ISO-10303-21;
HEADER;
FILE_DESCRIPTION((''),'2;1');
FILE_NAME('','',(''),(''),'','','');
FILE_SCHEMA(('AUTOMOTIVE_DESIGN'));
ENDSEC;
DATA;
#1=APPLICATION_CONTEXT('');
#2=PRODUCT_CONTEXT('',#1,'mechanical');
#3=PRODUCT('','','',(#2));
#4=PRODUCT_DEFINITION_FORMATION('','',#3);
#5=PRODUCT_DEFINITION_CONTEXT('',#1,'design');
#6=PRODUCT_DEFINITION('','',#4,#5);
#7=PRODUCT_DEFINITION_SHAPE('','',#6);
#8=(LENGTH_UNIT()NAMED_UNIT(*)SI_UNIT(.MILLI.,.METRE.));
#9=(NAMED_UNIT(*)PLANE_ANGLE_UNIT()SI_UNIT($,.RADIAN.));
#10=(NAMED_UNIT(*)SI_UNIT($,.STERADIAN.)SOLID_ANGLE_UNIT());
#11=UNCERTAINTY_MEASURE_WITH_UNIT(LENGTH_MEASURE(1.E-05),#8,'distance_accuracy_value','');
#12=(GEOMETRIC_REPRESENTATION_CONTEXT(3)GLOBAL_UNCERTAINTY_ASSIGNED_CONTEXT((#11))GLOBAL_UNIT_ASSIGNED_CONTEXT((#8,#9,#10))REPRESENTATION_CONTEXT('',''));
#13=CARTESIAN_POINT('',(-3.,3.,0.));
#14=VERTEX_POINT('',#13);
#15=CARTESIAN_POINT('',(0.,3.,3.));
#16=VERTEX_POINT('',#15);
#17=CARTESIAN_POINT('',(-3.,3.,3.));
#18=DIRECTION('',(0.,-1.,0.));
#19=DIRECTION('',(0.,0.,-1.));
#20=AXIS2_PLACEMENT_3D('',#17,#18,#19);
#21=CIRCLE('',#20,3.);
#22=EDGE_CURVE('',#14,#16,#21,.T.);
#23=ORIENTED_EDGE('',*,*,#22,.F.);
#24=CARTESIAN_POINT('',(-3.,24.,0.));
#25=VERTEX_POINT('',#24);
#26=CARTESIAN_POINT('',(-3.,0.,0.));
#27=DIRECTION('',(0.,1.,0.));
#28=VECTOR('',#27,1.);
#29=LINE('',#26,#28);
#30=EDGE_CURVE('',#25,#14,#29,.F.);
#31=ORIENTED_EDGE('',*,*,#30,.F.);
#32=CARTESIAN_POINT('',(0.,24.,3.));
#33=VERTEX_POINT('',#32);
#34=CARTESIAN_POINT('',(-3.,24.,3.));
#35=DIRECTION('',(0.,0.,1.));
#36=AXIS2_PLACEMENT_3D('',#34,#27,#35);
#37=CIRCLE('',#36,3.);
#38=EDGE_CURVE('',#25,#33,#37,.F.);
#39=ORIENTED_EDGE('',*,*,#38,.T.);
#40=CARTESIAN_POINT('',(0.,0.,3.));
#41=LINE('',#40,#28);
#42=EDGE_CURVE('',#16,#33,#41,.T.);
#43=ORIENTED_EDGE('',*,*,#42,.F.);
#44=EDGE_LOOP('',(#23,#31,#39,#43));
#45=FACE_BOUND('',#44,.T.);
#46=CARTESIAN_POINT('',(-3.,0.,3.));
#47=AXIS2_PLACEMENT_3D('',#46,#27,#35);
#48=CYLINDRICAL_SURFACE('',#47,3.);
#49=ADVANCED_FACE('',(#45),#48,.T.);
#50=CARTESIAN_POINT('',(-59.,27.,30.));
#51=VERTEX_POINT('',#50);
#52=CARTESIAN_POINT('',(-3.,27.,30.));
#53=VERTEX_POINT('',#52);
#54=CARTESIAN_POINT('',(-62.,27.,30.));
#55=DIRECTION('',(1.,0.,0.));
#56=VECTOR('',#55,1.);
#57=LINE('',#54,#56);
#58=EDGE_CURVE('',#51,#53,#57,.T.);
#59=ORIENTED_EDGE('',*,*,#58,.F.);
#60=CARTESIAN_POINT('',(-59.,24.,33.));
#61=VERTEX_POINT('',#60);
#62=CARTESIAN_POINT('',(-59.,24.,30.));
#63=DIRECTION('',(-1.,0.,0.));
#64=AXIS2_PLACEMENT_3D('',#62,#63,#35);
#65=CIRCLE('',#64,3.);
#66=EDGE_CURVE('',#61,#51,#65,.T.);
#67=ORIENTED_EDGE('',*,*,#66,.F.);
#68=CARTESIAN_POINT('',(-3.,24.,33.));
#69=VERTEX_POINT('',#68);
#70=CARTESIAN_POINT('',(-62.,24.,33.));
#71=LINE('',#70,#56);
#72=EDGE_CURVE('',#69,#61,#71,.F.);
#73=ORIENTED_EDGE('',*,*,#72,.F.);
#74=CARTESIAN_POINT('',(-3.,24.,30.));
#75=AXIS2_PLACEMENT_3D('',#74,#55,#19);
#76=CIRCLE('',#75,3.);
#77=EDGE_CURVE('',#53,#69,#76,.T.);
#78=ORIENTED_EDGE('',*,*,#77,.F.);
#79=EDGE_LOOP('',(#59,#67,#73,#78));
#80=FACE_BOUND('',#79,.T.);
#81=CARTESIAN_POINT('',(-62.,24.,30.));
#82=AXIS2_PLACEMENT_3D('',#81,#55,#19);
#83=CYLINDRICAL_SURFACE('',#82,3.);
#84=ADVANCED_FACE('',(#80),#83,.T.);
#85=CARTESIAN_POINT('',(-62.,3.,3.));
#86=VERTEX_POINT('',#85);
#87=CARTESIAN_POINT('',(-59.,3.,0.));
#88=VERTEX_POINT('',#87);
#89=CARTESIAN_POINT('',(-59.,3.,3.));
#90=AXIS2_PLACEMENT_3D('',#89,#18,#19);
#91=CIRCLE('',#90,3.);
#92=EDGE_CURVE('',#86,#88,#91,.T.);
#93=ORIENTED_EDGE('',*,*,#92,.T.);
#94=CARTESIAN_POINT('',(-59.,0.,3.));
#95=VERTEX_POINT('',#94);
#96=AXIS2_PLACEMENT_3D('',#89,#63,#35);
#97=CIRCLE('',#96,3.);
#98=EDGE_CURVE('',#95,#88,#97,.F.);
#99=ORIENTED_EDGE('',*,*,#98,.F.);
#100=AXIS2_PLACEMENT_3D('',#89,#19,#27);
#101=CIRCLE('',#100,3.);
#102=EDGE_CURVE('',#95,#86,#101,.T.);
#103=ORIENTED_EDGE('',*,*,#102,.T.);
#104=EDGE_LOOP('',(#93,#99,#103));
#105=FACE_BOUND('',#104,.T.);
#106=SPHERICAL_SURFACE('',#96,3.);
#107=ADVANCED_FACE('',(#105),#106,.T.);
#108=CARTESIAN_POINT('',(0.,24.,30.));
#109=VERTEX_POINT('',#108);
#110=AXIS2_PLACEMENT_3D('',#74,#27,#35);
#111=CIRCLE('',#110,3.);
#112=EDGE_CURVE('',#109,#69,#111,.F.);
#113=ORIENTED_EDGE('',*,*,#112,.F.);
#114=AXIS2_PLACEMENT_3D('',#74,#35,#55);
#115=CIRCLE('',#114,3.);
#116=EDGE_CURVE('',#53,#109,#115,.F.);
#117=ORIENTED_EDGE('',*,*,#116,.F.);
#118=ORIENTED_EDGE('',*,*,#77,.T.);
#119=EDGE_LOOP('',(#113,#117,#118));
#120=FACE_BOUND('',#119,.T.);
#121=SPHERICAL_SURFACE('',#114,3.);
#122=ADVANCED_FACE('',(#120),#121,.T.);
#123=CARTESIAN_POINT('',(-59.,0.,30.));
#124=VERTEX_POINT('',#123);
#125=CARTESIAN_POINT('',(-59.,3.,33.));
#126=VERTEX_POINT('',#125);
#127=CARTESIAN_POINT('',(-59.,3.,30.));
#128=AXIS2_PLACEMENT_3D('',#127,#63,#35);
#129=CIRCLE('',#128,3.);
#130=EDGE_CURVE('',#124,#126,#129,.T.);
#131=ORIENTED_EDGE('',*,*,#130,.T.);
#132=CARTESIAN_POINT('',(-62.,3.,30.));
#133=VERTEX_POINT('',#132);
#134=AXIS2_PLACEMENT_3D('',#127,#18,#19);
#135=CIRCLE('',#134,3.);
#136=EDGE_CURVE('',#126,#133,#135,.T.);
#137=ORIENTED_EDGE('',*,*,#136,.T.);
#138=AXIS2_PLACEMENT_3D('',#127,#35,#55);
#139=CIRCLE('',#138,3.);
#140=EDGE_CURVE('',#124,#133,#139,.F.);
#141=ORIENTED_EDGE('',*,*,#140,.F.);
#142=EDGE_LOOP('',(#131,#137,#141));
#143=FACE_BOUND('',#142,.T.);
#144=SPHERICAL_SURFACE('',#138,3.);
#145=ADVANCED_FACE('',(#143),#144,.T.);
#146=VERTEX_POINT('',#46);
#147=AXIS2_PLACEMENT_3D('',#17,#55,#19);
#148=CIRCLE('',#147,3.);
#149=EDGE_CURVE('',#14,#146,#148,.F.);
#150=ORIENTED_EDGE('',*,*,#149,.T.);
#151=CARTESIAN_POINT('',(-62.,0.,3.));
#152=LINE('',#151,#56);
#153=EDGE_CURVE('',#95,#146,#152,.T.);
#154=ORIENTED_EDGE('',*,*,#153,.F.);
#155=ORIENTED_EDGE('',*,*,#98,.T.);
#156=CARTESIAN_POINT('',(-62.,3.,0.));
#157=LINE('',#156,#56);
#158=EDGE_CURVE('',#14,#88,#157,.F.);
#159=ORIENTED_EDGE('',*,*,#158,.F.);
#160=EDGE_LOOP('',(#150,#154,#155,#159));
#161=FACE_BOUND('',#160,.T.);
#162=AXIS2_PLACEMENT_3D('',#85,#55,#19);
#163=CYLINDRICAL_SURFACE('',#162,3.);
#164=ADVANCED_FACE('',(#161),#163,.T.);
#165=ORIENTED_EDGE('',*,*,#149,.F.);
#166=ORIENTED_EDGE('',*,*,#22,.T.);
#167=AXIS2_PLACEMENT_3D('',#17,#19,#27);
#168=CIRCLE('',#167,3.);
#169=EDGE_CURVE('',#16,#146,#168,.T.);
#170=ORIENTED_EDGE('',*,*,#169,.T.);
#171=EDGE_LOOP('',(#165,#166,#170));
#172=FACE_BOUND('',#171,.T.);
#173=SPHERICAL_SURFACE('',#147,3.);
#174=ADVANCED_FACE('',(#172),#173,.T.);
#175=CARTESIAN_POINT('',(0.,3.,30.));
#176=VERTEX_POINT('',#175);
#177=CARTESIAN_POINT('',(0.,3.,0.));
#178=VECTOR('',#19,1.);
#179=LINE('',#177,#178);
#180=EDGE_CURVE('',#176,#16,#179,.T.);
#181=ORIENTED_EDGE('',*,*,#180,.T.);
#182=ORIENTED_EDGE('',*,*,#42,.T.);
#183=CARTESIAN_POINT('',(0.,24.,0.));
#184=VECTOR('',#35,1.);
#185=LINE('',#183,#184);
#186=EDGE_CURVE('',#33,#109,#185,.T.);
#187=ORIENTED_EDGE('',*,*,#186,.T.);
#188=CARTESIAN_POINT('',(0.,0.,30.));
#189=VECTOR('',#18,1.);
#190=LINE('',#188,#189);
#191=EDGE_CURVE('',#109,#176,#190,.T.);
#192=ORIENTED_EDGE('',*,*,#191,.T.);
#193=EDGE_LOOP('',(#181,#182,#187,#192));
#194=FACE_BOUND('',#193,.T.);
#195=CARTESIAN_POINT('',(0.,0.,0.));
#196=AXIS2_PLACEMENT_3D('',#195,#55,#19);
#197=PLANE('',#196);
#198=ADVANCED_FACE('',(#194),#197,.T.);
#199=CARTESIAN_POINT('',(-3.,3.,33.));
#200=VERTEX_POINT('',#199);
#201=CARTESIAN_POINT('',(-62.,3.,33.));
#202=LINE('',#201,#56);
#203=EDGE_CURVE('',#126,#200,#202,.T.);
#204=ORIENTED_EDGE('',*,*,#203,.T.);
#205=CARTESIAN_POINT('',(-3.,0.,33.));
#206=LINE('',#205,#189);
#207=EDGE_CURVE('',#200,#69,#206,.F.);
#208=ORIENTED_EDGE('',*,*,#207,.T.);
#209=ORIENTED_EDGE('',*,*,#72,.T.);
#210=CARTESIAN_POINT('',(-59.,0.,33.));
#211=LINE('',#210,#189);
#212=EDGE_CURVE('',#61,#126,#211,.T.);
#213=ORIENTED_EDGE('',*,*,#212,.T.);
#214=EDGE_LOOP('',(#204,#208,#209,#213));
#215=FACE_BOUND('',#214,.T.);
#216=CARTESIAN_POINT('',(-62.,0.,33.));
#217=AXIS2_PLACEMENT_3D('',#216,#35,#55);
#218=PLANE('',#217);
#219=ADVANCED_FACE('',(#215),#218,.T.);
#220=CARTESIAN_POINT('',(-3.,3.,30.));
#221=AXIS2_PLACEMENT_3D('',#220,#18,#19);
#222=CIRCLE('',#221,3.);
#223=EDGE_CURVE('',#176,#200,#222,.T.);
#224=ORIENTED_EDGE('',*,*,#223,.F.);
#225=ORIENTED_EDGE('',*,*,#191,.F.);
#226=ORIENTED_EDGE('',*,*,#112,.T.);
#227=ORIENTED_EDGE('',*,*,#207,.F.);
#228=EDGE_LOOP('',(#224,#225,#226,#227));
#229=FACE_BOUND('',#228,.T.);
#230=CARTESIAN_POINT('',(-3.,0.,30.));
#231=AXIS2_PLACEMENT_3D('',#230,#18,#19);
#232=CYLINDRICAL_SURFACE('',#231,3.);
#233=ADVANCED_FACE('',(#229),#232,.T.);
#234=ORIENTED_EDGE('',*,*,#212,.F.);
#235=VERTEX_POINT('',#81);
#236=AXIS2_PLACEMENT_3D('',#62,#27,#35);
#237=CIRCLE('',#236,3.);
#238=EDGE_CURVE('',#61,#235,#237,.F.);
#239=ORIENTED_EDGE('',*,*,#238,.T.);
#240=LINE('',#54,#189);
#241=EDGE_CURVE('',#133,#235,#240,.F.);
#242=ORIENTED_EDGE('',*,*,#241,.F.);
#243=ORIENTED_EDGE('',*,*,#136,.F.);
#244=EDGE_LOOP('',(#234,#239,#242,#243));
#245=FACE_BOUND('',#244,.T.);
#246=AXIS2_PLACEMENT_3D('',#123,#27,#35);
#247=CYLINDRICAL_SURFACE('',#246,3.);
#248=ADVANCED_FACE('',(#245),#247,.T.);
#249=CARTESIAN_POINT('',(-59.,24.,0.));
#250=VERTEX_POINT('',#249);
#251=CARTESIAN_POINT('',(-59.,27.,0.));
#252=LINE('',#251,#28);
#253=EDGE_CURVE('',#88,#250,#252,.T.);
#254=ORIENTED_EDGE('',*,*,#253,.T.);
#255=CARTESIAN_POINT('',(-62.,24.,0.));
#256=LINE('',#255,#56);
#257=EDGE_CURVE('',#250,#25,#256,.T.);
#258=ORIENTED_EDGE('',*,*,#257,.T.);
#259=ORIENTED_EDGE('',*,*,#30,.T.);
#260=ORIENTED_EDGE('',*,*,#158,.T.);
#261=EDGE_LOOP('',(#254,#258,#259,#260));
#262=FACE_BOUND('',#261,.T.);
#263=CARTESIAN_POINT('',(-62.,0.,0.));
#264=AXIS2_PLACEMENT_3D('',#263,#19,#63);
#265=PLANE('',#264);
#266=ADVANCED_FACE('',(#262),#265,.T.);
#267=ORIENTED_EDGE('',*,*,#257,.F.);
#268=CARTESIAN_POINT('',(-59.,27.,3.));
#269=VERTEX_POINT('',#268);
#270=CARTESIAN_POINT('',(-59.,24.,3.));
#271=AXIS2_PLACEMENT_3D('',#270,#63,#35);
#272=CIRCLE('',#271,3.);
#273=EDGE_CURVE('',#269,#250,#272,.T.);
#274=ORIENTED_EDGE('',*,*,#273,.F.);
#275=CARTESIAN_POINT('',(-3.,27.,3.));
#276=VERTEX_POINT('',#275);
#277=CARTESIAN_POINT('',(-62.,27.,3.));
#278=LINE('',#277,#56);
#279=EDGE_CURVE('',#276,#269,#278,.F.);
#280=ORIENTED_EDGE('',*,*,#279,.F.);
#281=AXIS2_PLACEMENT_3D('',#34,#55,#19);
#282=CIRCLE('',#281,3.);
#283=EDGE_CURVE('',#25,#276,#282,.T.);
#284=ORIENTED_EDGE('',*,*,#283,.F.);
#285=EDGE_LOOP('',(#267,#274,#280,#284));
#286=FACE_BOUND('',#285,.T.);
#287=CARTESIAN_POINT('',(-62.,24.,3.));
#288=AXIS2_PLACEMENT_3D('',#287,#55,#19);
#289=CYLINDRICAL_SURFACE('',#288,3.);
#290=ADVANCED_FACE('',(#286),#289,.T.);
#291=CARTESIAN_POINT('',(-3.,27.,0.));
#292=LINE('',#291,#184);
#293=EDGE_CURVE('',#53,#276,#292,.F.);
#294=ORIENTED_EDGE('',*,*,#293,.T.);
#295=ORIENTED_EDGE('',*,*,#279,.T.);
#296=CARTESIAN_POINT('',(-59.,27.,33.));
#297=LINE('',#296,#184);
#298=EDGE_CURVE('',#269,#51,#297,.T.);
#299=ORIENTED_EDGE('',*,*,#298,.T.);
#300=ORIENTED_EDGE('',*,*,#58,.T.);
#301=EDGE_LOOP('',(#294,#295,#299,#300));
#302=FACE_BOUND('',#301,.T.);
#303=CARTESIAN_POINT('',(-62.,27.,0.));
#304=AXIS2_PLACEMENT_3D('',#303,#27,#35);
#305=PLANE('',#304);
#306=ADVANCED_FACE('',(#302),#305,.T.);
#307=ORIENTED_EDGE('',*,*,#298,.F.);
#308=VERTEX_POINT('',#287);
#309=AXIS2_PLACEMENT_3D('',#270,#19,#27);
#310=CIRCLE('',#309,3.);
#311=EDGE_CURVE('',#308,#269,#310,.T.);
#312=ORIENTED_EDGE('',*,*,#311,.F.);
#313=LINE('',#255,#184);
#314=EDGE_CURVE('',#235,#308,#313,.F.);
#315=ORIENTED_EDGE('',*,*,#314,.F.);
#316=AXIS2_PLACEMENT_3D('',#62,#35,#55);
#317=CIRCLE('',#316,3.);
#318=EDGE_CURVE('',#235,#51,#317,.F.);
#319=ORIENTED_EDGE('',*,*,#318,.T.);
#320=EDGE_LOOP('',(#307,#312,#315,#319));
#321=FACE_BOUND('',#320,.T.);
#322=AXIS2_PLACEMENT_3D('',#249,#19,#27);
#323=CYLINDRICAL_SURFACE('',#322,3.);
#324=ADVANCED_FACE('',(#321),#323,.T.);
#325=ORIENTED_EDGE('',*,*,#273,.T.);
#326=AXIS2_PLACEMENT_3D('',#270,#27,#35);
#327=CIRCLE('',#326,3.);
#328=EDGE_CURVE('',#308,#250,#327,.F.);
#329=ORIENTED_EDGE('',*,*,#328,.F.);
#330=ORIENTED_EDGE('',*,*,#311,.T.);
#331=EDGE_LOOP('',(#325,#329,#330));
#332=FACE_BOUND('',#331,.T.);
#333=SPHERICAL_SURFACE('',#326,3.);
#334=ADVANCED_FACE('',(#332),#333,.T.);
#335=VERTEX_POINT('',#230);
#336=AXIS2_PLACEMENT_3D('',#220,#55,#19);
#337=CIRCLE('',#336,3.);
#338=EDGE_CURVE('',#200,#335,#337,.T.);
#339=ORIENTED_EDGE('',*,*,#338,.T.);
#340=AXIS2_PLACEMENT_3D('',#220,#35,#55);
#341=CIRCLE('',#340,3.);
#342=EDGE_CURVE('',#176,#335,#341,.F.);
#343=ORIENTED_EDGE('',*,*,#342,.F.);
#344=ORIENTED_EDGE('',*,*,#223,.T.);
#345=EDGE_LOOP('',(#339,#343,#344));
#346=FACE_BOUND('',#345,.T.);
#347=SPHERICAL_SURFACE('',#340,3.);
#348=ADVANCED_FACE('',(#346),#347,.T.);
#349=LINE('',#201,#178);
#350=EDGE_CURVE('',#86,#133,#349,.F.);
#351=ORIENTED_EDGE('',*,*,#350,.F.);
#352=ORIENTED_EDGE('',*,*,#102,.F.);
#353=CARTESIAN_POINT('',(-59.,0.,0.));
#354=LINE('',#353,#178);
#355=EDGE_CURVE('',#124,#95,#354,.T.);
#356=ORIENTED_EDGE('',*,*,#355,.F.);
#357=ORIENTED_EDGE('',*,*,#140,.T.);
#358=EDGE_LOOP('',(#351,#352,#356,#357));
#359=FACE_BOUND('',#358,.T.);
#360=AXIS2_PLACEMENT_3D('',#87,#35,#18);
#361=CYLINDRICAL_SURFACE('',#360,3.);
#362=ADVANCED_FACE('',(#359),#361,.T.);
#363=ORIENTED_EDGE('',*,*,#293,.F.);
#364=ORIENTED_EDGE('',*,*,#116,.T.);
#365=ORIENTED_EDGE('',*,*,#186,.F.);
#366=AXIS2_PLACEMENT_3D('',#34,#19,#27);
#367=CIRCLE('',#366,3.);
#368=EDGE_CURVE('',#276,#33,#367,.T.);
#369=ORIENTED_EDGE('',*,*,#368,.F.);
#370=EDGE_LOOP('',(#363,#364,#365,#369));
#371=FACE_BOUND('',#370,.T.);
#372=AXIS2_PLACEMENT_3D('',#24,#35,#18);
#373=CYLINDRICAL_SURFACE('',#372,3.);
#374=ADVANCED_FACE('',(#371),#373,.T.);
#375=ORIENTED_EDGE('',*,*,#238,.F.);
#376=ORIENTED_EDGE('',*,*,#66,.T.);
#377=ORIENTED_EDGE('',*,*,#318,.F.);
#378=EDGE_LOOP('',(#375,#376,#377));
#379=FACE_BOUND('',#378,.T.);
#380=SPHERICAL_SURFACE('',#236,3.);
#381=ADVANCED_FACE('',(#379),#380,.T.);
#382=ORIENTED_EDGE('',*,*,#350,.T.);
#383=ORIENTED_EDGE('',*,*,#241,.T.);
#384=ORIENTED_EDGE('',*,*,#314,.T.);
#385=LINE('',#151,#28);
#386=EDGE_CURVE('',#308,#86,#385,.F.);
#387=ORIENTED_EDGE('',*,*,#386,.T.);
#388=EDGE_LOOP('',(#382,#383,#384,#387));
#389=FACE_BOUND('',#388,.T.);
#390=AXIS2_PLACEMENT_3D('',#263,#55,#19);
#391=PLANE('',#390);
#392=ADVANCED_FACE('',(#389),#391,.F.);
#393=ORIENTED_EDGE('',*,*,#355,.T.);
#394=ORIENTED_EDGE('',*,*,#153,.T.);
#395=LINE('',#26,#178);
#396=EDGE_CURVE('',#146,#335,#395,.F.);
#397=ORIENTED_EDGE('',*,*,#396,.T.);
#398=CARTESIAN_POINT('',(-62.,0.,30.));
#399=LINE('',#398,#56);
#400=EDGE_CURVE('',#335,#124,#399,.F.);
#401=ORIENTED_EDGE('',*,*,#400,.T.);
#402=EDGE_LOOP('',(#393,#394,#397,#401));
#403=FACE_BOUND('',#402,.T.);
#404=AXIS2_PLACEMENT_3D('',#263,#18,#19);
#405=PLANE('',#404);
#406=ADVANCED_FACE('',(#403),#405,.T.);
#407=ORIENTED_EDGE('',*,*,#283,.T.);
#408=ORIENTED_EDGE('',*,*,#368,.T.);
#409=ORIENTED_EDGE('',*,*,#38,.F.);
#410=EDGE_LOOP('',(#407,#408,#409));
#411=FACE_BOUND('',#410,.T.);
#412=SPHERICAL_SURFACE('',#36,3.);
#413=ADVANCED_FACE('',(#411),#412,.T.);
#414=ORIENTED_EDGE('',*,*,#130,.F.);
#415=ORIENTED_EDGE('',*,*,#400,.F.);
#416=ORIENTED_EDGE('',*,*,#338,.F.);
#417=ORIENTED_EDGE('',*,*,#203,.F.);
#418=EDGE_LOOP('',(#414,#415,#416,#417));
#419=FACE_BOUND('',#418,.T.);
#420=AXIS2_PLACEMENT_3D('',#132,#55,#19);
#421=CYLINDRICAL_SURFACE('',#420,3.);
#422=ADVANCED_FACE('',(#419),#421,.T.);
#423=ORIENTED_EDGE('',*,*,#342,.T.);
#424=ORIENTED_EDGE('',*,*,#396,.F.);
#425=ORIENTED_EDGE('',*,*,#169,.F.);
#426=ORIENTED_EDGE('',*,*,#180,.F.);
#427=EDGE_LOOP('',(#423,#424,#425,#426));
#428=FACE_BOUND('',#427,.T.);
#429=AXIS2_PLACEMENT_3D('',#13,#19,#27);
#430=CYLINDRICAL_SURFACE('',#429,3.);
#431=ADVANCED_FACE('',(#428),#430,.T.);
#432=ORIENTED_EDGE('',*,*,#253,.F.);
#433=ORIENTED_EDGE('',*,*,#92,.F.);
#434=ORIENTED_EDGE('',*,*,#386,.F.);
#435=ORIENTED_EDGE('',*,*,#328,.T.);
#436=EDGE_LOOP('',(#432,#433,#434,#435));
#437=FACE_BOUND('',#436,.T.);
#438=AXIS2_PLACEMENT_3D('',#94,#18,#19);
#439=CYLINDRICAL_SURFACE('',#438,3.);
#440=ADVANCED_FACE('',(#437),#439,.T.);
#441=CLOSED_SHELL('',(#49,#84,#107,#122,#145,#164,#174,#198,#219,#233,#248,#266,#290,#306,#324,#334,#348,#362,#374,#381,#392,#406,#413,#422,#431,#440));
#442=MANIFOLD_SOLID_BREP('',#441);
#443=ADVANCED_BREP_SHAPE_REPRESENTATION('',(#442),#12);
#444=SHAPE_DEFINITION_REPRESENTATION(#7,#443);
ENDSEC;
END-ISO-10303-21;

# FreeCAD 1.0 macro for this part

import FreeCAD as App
import Part
import Sketcher

doc = App.newDocument("Part")
params = doc.addObject("Spreadsheet::Sheet", "Params")
for row, (alias, value) in enumerate([
    ("sketch1_width", "27 mm"),
    ("sketch1_height", "33 mm"),
    ("pad1_length", "62 mm"),
    ("fillet_radius", "3 mm"),
], start=1):
    params.set(f"A{row}", alias)
    params.set(f"B{row}", "=" + value)
    params.setAlias(f"B{row}", alias)

body = doc.addObject("PartDesign::Body", "Body")

# Sketch on YZ plane
sketch1 = body.newObject("Sketcher::SketchObject", "Sketch")
sketch1.AttachmentSupport = (doc.getObject("YZ_Plane"), [""])
sketch1.MapMode = "FlatFace"
sketch1.addGeometry([
    Part.LineSegment(App.Vector(27, 33, 0), App.Vector(0, 33, 0)),
    Part.LineSegment(App.Vector(0, 33, 0), App.Vector(0, 0, 0)),
    Part.LineSegment(App.Vector(0, 0, 0), App.Vector(27, 0, 0)),
    Part.LineSegment(App.Vector(27, 0, 0), App.Vector(27, 33, 0)),
], False)
sketch1.addConstraint([
    Sketcher.Constraint("Coincident", 0, 2, 1, 1),
    Sketcher.Constraint("Coincident", 1, 2, 2, 1),
    Sketcher.Constraint("Coincident", 2, 2, 3, 1),
    Sketcher.Constraint("Coincident", 3, 2, 0, 1),
    Sketcher.Constraint("Horizontal", 0),
    Sketcher.Constraint("Vertical", 1),
    Sketcher.Constraint("Horizontal", 2),
    Sketcher.Constraint("Vertical", 3),
    Sketcher.Constraint("Coincident", 1, 2, -1, 1),
    Sketcher.Constraint("DistanceX", 0, 2, 0, 1, 27.0),
    Sketcher.Constraint("DistanceY", 1, 2, 1, 1, 33.0),
])
sketch1.setExpression("Constraints[9]", "Params.sketch1_width")
sketch1.setExpression("Constraints[10]", "Params.sketch1_height")
pad1 = body.newObject("PartDesign::Pad", "Pad")
pad1.Profile = sketch1
pad1.setExpression("Length", "Params.pad1_length")
pad1.Reversed = True
doc.recompute()

fillet = body.newObject("PartDesign::Fillet", "Fillet")
fillet.Base = (pad1, ["Edge1"])
fillet.UseAllEdges = True
fillet.setExpression("Radius", "Params.fillet_radius")

doc.recompute()
